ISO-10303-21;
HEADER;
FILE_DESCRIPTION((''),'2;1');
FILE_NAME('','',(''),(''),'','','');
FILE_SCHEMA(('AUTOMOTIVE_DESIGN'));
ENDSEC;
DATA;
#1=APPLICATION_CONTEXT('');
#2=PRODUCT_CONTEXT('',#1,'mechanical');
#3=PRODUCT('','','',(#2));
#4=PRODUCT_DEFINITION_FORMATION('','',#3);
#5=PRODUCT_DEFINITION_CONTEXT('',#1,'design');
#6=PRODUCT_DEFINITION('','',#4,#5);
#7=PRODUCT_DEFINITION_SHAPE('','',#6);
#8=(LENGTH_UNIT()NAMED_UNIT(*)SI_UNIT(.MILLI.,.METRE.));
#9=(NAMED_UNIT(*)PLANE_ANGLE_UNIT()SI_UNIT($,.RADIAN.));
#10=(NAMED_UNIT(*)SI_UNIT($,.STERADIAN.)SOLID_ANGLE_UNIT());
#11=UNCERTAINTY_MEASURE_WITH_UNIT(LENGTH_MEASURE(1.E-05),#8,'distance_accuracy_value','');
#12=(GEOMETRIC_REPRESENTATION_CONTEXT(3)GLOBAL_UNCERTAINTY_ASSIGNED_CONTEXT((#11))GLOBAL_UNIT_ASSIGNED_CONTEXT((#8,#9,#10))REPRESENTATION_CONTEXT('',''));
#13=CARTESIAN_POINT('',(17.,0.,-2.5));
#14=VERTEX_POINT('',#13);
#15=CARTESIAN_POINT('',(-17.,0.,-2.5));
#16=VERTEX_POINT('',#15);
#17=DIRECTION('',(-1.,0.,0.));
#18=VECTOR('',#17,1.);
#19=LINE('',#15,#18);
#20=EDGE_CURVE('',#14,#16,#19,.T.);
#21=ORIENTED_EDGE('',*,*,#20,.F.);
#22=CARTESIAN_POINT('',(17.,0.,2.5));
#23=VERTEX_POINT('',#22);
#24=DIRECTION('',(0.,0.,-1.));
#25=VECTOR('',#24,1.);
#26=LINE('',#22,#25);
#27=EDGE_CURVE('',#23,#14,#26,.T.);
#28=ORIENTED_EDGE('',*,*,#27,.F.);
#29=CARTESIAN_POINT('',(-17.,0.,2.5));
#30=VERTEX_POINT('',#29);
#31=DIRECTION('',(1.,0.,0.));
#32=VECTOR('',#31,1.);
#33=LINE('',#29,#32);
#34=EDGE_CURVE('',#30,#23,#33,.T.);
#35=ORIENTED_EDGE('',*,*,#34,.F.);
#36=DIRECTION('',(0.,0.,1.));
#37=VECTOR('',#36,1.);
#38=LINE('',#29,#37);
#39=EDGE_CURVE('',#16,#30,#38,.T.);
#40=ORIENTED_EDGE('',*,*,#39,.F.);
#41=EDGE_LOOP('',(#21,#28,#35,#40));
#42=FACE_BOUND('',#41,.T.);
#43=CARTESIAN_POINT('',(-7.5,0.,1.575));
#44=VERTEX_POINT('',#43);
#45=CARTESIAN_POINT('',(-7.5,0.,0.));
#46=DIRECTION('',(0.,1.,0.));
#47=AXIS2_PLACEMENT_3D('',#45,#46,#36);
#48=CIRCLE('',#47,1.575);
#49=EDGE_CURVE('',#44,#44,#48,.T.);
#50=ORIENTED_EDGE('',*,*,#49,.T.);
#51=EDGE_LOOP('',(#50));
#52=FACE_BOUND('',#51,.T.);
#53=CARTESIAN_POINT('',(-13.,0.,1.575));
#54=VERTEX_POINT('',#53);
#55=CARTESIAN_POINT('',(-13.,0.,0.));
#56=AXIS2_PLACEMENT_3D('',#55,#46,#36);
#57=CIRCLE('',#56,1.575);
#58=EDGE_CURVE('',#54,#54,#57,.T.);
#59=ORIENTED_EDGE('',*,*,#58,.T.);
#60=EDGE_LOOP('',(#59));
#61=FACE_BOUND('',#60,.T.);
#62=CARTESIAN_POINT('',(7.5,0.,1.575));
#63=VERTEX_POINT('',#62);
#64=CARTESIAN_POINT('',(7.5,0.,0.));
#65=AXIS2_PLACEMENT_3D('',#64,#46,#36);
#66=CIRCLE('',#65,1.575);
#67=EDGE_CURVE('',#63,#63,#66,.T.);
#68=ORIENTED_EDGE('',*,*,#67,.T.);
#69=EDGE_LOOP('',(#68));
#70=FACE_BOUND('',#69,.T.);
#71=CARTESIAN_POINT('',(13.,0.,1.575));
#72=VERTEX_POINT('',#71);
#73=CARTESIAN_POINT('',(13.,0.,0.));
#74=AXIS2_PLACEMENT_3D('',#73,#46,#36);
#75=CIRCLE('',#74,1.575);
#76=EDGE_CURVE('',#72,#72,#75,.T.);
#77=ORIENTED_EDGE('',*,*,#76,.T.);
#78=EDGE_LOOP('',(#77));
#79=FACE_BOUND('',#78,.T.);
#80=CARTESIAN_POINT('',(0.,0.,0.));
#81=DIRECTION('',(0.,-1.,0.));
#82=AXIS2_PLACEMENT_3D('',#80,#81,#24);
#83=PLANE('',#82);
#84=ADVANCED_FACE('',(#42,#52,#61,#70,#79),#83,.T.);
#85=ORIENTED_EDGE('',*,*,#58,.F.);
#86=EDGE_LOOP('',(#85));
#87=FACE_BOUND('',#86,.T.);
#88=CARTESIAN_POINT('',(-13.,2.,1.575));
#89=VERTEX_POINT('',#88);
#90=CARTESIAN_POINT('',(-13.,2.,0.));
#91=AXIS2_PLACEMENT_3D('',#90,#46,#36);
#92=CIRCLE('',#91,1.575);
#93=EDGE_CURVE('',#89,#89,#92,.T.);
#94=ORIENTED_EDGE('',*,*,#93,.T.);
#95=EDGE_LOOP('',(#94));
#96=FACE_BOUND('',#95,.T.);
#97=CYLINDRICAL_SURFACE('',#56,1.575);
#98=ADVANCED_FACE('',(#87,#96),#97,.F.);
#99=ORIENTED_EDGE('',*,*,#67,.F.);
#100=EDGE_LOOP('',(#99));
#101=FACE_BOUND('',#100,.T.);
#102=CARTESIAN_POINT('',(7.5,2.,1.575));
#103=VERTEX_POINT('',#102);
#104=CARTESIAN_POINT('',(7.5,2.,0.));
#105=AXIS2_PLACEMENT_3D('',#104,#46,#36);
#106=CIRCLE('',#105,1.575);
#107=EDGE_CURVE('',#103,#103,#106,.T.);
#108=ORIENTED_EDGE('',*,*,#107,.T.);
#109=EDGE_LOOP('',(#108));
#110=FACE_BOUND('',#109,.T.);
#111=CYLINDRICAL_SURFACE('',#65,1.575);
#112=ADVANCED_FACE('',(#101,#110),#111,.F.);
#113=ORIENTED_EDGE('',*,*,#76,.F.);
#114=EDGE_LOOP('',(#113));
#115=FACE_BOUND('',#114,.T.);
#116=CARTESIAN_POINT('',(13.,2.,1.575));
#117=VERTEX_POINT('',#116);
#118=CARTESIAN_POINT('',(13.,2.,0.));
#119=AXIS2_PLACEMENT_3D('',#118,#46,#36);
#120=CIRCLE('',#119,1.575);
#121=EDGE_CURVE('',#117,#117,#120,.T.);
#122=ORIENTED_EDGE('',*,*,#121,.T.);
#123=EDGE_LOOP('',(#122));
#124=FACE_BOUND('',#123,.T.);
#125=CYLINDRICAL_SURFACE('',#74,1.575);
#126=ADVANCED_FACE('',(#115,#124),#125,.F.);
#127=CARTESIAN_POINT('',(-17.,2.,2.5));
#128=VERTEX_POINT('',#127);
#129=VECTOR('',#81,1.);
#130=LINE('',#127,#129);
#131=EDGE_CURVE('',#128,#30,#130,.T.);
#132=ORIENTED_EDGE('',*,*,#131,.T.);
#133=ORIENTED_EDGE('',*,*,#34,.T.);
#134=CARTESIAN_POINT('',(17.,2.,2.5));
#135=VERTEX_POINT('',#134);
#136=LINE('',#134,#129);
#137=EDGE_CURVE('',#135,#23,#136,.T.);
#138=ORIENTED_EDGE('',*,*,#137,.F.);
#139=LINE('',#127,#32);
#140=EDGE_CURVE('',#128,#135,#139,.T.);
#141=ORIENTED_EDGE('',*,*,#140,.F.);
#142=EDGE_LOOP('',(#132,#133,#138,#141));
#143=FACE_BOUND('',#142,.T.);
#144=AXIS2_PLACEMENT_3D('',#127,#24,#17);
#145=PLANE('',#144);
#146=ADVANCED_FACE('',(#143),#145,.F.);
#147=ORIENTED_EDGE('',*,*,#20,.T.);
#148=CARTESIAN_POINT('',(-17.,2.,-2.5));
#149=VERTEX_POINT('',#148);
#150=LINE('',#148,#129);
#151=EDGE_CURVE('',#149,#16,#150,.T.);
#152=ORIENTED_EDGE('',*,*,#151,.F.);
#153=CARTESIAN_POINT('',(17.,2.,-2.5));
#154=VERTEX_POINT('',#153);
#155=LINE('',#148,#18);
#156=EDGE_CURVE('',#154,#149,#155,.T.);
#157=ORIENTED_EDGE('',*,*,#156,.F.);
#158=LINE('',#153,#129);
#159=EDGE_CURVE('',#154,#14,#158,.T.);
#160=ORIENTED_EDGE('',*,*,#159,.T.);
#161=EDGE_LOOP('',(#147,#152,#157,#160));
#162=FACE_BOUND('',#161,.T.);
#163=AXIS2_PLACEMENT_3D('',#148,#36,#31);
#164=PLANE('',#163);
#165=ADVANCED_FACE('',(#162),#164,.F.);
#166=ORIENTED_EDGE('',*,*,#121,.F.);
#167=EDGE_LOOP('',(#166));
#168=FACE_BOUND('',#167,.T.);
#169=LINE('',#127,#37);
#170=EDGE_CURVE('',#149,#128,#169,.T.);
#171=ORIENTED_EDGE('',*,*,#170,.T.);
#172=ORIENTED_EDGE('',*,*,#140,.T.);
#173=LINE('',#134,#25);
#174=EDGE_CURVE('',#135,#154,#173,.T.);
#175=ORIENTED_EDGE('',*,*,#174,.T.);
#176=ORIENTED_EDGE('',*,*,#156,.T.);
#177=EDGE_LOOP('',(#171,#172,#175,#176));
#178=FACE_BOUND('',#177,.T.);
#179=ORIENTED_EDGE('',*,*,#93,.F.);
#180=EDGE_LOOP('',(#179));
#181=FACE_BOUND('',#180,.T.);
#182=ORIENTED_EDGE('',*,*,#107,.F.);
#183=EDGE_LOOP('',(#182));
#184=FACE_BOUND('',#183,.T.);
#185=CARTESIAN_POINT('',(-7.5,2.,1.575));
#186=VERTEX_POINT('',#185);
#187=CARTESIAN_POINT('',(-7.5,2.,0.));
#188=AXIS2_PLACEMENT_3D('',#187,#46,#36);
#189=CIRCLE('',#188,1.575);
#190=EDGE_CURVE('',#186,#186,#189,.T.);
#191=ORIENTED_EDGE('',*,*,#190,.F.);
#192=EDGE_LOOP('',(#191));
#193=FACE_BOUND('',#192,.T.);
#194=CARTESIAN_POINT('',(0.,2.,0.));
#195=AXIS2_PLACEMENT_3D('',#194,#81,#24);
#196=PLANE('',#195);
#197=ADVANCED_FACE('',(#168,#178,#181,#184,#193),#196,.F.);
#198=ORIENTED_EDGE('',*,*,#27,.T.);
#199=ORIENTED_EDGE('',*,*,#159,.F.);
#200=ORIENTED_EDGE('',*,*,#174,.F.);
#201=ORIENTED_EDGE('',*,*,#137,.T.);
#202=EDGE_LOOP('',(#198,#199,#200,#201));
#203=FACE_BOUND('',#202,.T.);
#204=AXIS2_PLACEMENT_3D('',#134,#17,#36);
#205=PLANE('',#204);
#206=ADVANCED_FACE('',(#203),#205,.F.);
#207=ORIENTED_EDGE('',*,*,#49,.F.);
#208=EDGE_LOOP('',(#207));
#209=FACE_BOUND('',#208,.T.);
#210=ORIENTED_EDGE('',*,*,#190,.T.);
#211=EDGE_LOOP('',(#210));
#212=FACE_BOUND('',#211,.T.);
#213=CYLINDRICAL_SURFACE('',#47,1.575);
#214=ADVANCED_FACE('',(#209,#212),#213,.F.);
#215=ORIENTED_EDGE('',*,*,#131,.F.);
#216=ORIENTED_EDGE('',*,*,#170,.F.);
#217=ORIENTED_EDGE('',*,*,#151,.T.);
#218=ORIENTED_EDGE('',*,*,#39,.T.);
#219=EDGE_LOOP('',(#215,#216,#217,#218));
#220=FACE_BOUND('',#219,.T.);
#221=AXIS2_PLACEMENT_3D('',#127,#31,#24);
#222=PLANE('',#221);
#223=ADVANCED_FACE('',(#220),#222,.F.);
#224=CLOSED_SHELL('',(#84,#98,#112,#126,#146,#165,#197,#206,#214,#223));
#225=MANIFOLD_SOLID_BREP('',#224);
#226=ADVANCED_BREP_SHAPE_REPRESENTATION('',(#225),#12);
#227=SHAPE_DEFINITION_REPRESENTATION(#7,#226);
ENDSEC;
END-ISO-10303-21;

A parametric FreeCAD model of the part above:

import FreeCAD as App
import Part
import Sketcher

V = App.Vector
Q = App.Units.Quantity

doc = App.newDocument("Part")
params = doc.addObject("Spreadsheet::Sheet", "Params")
for row, (alias, value) in enumerate([
    ("sketch1_width", "34 mm"),
    ("sketch1_height", "5 mm"),
    ("pad1_length", "2 mm"),
    ("sketch2_diameter", "3.15 mm"),
    ("pocket1_length", "2 mm"),
    ("sketch3_diameter", "3.15 mm"),
    ("pocket2_length", "2 mm"),
], start=1):
    params.set(f"A{row}", alias)
    params.set(f"B{row}", "=" + value)
    params.setAlias(f"B{row}", alias)

body = doc.addObject("PartDesign::Body", "Body")

# Sketch on XZ plane
sketch1 = body.newObject("Sketcher::SketchObject", "Sketch")
sketch1.AttachmentSupport = (doc.getObject("XZ_Plane"), [""])
sketch1.MapMode = "FlatFace"
sketch1.addGeometry(Part.LineSegment(V(-17, -2.5, 0), V(-17, 2.5, 0)), False)
sketch1.addGeometry(Part.LineSegment(V(-17, 2.5, 0), V(17, 2.5, 0)), False)
sketch1.addGeometry(Part.LineSegment(V(17, 2.5, 0), V(17, -2.5, 0)), False)
sketch1.addGeometry(Part.LineSegment(V(17, -2.5, 0), V(-17, -2.5, 0)), False)
sketch1.addConstraint(Sketcher.Constraint("Coincident", 0, 2, 1, 1))
sketch1.addConstraint(Sketcher.Constraint("Coincident", 1, 2, 2, 1))
sketch1.addConstraint(Sketcher.Constraint("Coincident", 2, 2, 3, 1))
sketch1.addConstraint(Sketcher.Constraint("Coincident", 3, 2, 0, 1))
sketch1.addConstraint(Sketcher.Constraint("Vertical", 0))
sketch1.addConstraint(Sketcher.Constraint("Horizontal", 1))
sketch1.addConstraint(Sketcher.Constraint("Vertical", 2))
sketch1.addConstraint(Sketcher.Constraint("Horizontal", 3))
sketch1.addConstraint(Sketcher.Constraint("Symmetric", 0, 2, 2, 2, -1, 1))
sketch1.addConstraint(Sketcher.Constraint("DistanceX", 1, 1, 1, 2, Q("34 mm")))
sketch1.addConstraint(Sketcher.Constraint("DistanceY", 0, 1, 0, 2, Q("5 mm")))
sketch1.setExpression("Constraints[9]", "Params.sketch1_width")
sketch1.setExpression("Constraints[10]", "Params.sketch1_height")
pad1 = body.newObject("PartDesign::Pad", "Pad")
pad1.Profile = sketch1
pad1.setExpression("Length", "Params.pad1_length")
pad1.Reversed = True

# Sketch on XZ plane
sketch2 = body.newObject("Sketcher::SketchObject", "Sketch001")
sketch2.AttachmentSupport = (doc.getObject("XZ_Plane"), [""])
sketch2.MapMode = "FlatFace"
sketch2.AttachmentOffset = App.Placement(V(0, 0, -2), App.Rotation())
sketch2.addGeometry(Part.Circle(V(-13, 0, 0), V(0, 0, 1), 1.575), False)
sketch2.addGeometry(Part.Circle(V(13, 0, 0), V(0, 0, 1), 1.575), False)
sketch2.addConstraint(Sketcher.Constraint("Equal", 0, 1))
sketch2.addConstraint(Sketcher.Constraint("Symmetric", 0, 3, 1, 3, -1, 1))
sketch2.addConstraint(Sketcher.Constraint("PointOnObject", 0, 3, -1))
sketch2.addConstraint(Sketcher.Constraint("Diameter", 0, Q("3.15 mm")))
sketch2.addConstraint(Sketcher.Constraint("DistanceX", 0, 3, -1, 1, Q("13 mm")))
sketch2.setExpression("Constraints[3]", "Params.sketch2_diameter")
pocket1 = body.newObject("PartDesign::Pocket", "Pocket")
pocket1.Profile = sketch2
pocket1.setExpression("Length", "Params.pocket1_length")
pocket1.Reversed = True

# Sketch on XZ plane
sketch3 = body.newObject("Sketcher::SketchObject", "Sketch002")
sketch3.AttachmentSupport = (doc.getObject("XZ_Plane"), [""])
sketch3.MapMode = "FlatFace"
sketch3.AttachmentOffset = App.Placement(V(0, 0, -2), App.Rotation())
sketch3.addGeometry(Part.Circle(V(-7.5, 0, 0), V(0, 0, 1), 1.575), False)
sketch3.addGeometry(Part.Circle(V(7.5, 0, 0), V(0, 0, 1), 1.575), False)
sketch3.addConstraint(Sketcher.Constraint("Equal", 0, 1))
sketch3.addConstraint(Sketcher.Constraint("Symmetric", 0, 3, 1, 3, -1, 1))
sketch3.addConstraint(Sketcher.Constraint("PointOnObject", 0, 3, -1))
sketch3.addConstraint(Sketcher.Constraint("Diameter", 0, Q("3.15 mm")))
sketch3.addConstraint(Sketcher.Constraint("DistanceX", 0, 3, 1, 3, Q("15 mm")))
sketch3.setExpression("Constraints[3]", "Params.sketch3_diameter")
pocket2 = body.newObject("PartDesign::Pocket", "Pocket001")
pocket2.Profile = sketch3
pocket2.setExpression("Length", "Params.pocket2_length")
pocket2.Reversed = True

doc.recompute()
